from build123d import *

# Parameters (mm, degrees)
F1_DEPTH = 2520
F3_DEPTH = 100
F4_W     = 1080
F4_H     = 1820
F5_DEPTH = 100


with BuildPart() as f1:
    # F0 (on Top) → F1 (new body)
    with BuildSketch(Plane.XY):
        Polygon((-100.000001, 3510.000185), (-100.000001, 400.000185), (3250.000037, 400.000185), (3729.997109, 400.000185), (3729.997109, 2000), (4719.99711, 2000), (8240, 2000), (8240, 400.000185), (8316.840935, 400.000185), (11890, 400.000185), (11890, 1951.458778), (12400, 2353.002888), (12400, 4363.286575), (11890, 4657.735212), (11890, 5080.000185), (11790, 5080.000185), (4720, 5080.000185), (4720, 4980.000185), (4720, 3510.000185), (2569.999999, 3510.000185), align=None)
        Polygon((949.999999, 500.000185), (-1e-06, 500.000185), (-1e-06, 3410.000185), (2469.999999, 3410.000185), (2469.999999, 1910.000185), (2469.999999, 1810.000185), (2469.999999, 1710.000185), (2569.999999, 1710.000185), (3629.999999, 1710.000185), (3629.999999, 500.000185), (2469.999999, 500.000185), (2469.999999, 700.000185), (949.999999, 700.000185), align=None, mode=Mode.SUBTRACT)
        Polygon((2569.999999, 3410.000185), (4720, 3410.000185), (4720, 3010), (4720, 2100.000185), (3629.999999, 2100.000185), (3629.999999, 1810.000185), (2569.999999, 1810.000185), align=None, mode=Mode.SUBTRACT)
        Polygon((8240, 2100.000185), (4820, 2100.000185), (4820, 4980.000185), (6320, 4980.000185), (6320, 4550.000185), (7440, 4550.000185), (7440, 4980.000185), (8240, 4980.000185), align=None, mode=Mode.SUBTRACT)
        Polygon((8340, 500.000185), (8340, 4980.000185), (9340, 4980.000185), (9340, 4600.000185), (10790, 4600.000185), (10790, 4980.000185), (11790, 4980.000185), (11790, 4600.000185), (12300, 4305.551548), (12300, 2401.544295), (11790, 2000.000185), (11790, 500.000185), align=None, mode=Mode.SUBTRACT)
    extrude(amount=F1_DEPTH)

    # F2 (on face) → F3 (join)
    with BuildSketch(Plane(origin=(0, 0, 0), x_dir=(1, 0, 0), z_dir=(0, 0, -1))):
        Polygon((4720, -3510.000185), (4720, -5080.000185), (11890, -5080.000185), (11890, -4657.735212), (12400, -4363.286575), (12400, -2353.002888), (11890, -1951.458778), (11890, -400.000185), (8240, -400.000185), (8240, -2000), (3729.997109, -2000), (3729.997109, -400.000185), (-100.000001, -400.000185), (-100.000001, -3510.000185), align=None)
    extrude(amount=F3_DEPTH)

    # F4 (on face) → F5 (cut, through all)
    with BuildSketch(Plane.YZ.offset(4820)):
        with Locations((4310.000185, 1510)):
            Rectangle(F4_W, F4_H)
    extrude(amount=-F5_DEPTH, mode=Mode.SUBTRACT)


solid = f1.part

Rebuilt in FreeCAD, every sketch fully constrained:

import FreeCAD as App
import Part
import Sketcher

V = App.Vector
Q = App.Units.Quantity


def add_polygon(sketch, points):
    """Adds a closed chain of lines whose ends are joined by coincident constraints."""
    first, n = sketch.GeometryCount, len(points)
    for a, b in zip(points, points[1:] + points[:1]):
        sketch.addGeometry(Part.LineSegment(App.Vector(*a, 0), App.Vector(*b, 0)), False)
    for i in range(n):
        sketch.addConstraint(Sketcher.Constraint("Coincident", first + i, 2, first + (i + 1) % n, 1))

doc = App.newDocument("Part")
body = doc.addObject("PartDesign::Body", "Body")

sketch1 = body.newObject("Sketcher::SketchObject", "Sketch")
sketch1.AttachmentSupport = (doc.getObject("XY_Plane"), [""])
sketch1.MapMode = "FlatFace"
add_polygon(sketch1, [(-100.000001, 3510.000185), (-100.000001, 400.000185), (3729.997109, 400.000185), (3729.997109, 2000), (8240, 2000), (8240, 400.000185), (11890, 400.000185), (11890, 1951.458778), (12400, 2353.002888), (12400, 4363.286575), (11890, 4657.735212), (11890, 5080.000185), (4720, 5080.000185), (4720, 3510.000185)])
add_polygon(sketch1, [(949.999999, 700.000185), (949.999999, 500.000185), (-0.000001, 500.000185), (-0.000001, 3410.000185), (2469.999999, 3410.000185), (2469.999999, 1710.000185), (3629.999999, 1710.000185), (3629.999999, 500.000185), (2469.999999, 500.000185), (2469.999999, 700.000185)])
add_polygon(sketch1, [(2569.999999, 1810.000185), (2569.999999, 3410.000185), (4720, 3410.000185), (4720, 2100.000185), (3629.999999, 2100.000185), (3629.999999, 1810.000185)])
add_polygon(sketch1, [(8240, 4980.000185), (8240, 2100.000185), (4820, 2100.000185), (4820, 4980.000185), (6320, 4980.000185), (6320, 4550.000185), (7440, 4550.000185), (7440, 4980.000185)])
add_polygon(sketch1, [(11790, 500.000185), (8340, 500.000185), (8340, 4980.000185), (9340, 4980.000185), (9340, 4600.000185), (10790, 4600.000185), (10790, 4980.000185), (11790, 4980.000185), (11790, 4600.000185), (12300, 4305.551548), (12300, 2401.544295), (11790, 2000.000185)])
sketch1.addConstraint([
    Sketcher.Constraint("Vertical", 0),
    Sketcher.Constraint("Horizontal", 1),
    Sketcher.Constraint("Vertical", 2),
    Sketcher.Constraint("Horizontal", 3),
    Sketcher.Constraint("Vertical", 4),
    Sketcher.Constraint("Horizontal", 5),
    Sketcher.Constraint("Vertical", 6),
    Sketcher.Constraint("Vertical", 8),
    Sketcher.Constraint("Vertical", 10),
    Sketcher.Constraint("Horizontal", 11),
    Sketcher.Constraint("Vertical", 12),
    Sketcher.Constraint("Horizontal", 13),
    Sketcher.Constraint("Vertical", 14),
    Sketcher.Constraint("Horizontal", 15),
    Sketcher.Constraint("Vertical", 16),
    Sketcher.Constraint("Horizontal", 17),
    Sketcher.Constraint("Vertical", 18),
    Sketcher.Constraint("Horizontal", 19),
    Sketcher.Constraint("Vertical", 20),
    Sketcher.Constraint("Horizontal", 21),
    Sketcher.Constraint("Vertical", 22),
    Sketcher.Constraint("Horizontal", 23),
    Sketcher.Constraint("Vertical", 24),
    Sketcher.Constraint("Horizontal", 25),
    Sketcher.Constraint("Vertical", 26),
    Sketcher.Constraint("Horizontal", 27),
    Sketcher.Constraint("Vertical", 28),
    Sketcher.Constraint("Horizontal", 29),
    Sketcher.Constraint("Vertical", 30),
    Sketcher.Constraint("Horizontal", 31),
    Sketcher.Constraint("Vertical", 32),
    Sketcher.Constraint("Horizontal", 33),
    Sketcher.Constraint("Vertical", 34),
    Sketcher.Constraint("Horizontal", 35),
    Sketcher.Constraint("Vertical", 36),
    Sketcher.Constraint("Horizontal", 37),
    Sketcher.Constraint("Horizontal", 38),
    Sketcher.Constraint("Vertical", 39),
    Sketcher.Constraint("Horizontal", 40),
    Sketcher.Constraint("Vertical", 41),
    Sketcher.Constraint("Horizontal", 42),
    Sketcher.Constraint("Vertical", 43),
    Sketcher.Constraint("Horizontal", 44),
    Sketcher.Constraint("Vertical", 45),
    Sketcher.Constraint("Vertical", 47),
    Sketcher.Constraint("Vertical", 49),
    Sketcher.Constraint("PointOnObject", 15, 2, -2),
    Sketcher.Constraint("Parallel", 9, 46),
    Sketcher.Constraint("Parallel", 7, 48),
    Sketcher.Constraint("Horizontal", 1, 2, 4, 2),
    Sketcher.Constraint("Horizontal", 15, 2, 20, 2),
    Sketcher.Constraint("Horizontal", 17, 2, 24, 2),
    Sketcher.Constraint("Horizontal", 27, 2, 30, 2),
    Sketcher.Constraint("Horizontal", 33, 2, 36, 2),
    Sketcher.Constraint("Horizontal", 21, 2, 38, 2),
    Sketcher.Constraint("Horizontal", 37, 2, 39, 2),
    Sketcher.Constraint("Horizontal", 40, 2, 43, 2),
    Sketcher.Constraint("Horizontal", 42, 2, 45, 2),
    Sketcher.Constraint("Vertical", 6, 2, 9, 2),
    Sketcher.Constraint("Vertical", 18, 2, 21, 2),
    Sketcher.Constraint("Vertical", 12, 2, 25, 2),
    Sketcher.Constraint("Vertical", 20, 2, 27, 2),
    Sketcher.Constraint("Vertical", 4, 2, 30, 2),
    Sketcher.Constraint("Vertical", 45, 2, 48, 2),
    Sketcher.Constraint("Equal", 40, 44),
    Sketcher.Constraint("Equal", 33, 49),
    Sketcher.Constraint("Equal", 9, 46),
    Sketcher.Constraint("DistanceX", 5, 1, 5, 2, 3650.0),
    Sketcher.Constraint("DistanceX", 11, 2, 11, 1, 7170.0),
    Sketcher.Constraint("DistanceX", 13, 2, 13, 1, 4820.000001),
    Sketcher.Constraint("DistanceX", 15, 2, 15, 1, 950.0),
    Sketcher.Constraint("DistanceX", 17, 1, 17, 2, 2470.0),
    Sketcher.Constraint("DistanceX", 19, 1, 19, 2, 1160.0),
    Sketcher.Constraint("DistanceX", 25, 1, 25, 2, 2150.000001),
    Sketcher.Constraint("DistanceX", 27, 2, 27, 1, 1090.000001),
    Sketcher.Constraint("DistanceX", 31, 2, 31, 1, 3420.0),
    Sketcher.Constraint("DistanceX", 33, 1, 33, 2, 1500.0),
    Sketcher.Constraint("DistanceX", 35, 1, 35, 2, 1120.0),
    Sketcher.Constraint("DistanceX", 38, 2, 38, 1, 3450.0),
    Sketcher.Constraint("DistanceX", 40, 1, 40, 2, 1000.0),
    Sketcher.Constraint("DistanceY", 0, 2, 0, 1, 3110.0),
    Sketcher.Constraint("DistanceY", 12, 2, 12, 1, 1570.0),
    Sketcher.Constraint("DistanceY", 14, 2, 14, 1, 200.0),
    Sketcher.Constraint("DistanceY", 16, 1, 16, 2, 2910.0),
    Sketcher.Constraint("DistanceY", 18, 2, 18, 1, 1700.0),
    Sketcher.Constraint("DistanceY", 24, 1, 24, 2, 1600.0),
    Sketcher.Constraint("DistanceY", 26, 2, 26, 1, 1310.0),
    Sketcher.Constraint("DistanceY", 30, 2, 30, 1, 2880.0),
    Sketcher.Constraint("DistanceY", 34, 2, 34, 1, 430.0),
    Sketcher.Constraint("DistanceY", 41, 2, 41, 1, 380.0),
    Sketcher.Constraint("Angle", 9, Q("150 deg")),
    Sketcher.Constraint("DistanceY", -1, 1, 2, 2, 2000.0),
    Sketcher.Constraint("DistanceX", -1, 1, 7, 2, 12400.0),
    Sketcher.Constraint("DistanceX", -1, 1, 38, 2, 8340.0),
    Sketcher.Constraint("DistanceY", 0, 2, 14, 2, 100.0),
    Sketcher.Constraint("DistanceX", 1, 1, 1, 2, 3829.99711),
    Sketcher.Constraint("DistanceY", 2, 1, 2, 2, 1599.999815),
    Sketcher.Constraint("DistanceY", 6, 1, 6, 2, 1551.458593),
    Sketcher.Constraint("DistanceY", 8, 1, 8, 2, 2010.283687),
    Sketcher.Constraint("DistanceY", 10, 1, 10, 2, 422.264973),
])
pad1 = body.newObject("PartDesign::Pad", "Pad")
pad1.Profile = sketch1
pad1.Length = 2520

sketch2 = body.newObject("Sketcher::SketchObject", "Sketch001")
sketch2.AttachmentSupport = (doc.getObject("XY_Plane"), [""])
sketch2.MapMode = "FlatFace"
add_polygon(sketch2, [(4720, 3510.000185), (4720, 5080.000185), (11890, 5080.000185), (11890, 4657.735212), (12400, 4363.286575), (12400, 2353.002888), (11890, 1951.458778), (11890, 400.000185), (8240, 400.000185), (8240, 2000), (3729.997109, 2000), (3729.997109, 400.000185), (-100.000001, 400.000185), (-100.000001, 3510.000185)])
sketch2.addConstraint([
    Sketcher.Constraint("Vertical", 0),
    Sketcher.Constraint("Horizontal", 1),
    Sketcher.Constraint("Vertical", 2),
    Sketcher.Constraint("Vertical", 4),
    Sketcher.Constraint("Vertical", 6),
    Sketcher.Constraint("Horizontal", 7),
    Sketcher.Constraint("Vertical", 8),
    Sketcher.Constraint("Horizontal", 9),
    Sketcher.Constraint("Vertical", 10),
    Sketcher.Constraint("Horizontal", 11),
    Sketcher.Constraint("Vertical", 12),
    Sketcher.Constraint("Horizontal", 13),
    Sketcher.Constraint("Horizontal", 7, 2, 10, 2),
    Sketcher.Constraint("Vertical", 2, 2, 5, 2),
    Sketcher.Constraint("DistanceX", 1, 1, 1, 2, 7170.0),
    Sketcher.Constraint("DistanceX", 7, 2, 7, 1, 3650.0),
    Sketcher.Constraint("DistanceX", 13, 1, 13, 2, 4820.000001),
    Sketcher.Constraint("DistanceY", 0, 1, 0, 2, 1570.0),
    Sketcher.Constraint("DistanceY", 12, 1, 12, 2, 3110.0),
    Sketcher.Constraint("Angle", 3, Q("-30 deg")),
    Sketcher.Constraint("DistanceX", -1, 1, 0, 2, 4720.0),
    Sketcher.Constraint("DistanceX", -1, 1, 3, 2, 12400.0),
    Sketcher.Constraint("DistanceY", -1, 1, 8, 2, 2000.0),
    Sketcher.Constraint("DistanceX", 9, 2, 9, 1, 4510.002891),
    Sketcher.Constraint("DistanceY", 2, 2, 2, 1, 422.264973),
    Sketcher.Constraint("DistanceY", 4, 2, 4, 1, 2010.283687),
    Sketcher.Constraint("DistanceY", 6, 2, 6, 1, 1551.458593),
    Sketcher.Constraint("DistanceY", 8, 1, 8, 2, 1599.999815),
])
pad2 = body.newObject("PartDesign::Pad", "Pad001")
pad2.Profile = sketch2
pad2.Length = 100
pad2.Reversed = True

sketch3 = body.newObject("Sketcher::SketchObject", "Sketch002")
sketch3.AttachmentSupport = (doc.getObject("YZ_Plane"), [""])
sketch3.MapMode = "FlatFace"
sketch3.AttachmentOffset = App.Placement(V(0, 0, 4820), App.Rotation())
add_polygon(sketch3, [(3770.000185, 2420), (3770.000185, 600), (4850.000185, 600), (4850.000185, 2420)])
sketch3.addConstraint([
    Sketcher.Constraint("Vertical", 0),
    Sketcher.Constraint("Horizontal", 1),
    Sketcher.Constraint("Vertical", 2),
    Sketcher.Constraint("Horizontal", 3),
    Sketcher.Constraint("DistanceX", 1, 1, 1, 2, 1080.0),
    Sketcher.Constraint("DistanceY", 0, 2, 0, 1, 1820.0),
    Sketcher.Constraint("DistanceY", -1, 1, 0, 2, 600.0),
    Sketcher.Constraint("DistanceX", -1, 1, 0, 2, 3770.000185),
])
pocket1 = body.newObject("PartDesign::Pocket", "Pocket")
pocket1.Profile = sketch3
pocket1.Type = "ThroughAll"

doc.recompute()
